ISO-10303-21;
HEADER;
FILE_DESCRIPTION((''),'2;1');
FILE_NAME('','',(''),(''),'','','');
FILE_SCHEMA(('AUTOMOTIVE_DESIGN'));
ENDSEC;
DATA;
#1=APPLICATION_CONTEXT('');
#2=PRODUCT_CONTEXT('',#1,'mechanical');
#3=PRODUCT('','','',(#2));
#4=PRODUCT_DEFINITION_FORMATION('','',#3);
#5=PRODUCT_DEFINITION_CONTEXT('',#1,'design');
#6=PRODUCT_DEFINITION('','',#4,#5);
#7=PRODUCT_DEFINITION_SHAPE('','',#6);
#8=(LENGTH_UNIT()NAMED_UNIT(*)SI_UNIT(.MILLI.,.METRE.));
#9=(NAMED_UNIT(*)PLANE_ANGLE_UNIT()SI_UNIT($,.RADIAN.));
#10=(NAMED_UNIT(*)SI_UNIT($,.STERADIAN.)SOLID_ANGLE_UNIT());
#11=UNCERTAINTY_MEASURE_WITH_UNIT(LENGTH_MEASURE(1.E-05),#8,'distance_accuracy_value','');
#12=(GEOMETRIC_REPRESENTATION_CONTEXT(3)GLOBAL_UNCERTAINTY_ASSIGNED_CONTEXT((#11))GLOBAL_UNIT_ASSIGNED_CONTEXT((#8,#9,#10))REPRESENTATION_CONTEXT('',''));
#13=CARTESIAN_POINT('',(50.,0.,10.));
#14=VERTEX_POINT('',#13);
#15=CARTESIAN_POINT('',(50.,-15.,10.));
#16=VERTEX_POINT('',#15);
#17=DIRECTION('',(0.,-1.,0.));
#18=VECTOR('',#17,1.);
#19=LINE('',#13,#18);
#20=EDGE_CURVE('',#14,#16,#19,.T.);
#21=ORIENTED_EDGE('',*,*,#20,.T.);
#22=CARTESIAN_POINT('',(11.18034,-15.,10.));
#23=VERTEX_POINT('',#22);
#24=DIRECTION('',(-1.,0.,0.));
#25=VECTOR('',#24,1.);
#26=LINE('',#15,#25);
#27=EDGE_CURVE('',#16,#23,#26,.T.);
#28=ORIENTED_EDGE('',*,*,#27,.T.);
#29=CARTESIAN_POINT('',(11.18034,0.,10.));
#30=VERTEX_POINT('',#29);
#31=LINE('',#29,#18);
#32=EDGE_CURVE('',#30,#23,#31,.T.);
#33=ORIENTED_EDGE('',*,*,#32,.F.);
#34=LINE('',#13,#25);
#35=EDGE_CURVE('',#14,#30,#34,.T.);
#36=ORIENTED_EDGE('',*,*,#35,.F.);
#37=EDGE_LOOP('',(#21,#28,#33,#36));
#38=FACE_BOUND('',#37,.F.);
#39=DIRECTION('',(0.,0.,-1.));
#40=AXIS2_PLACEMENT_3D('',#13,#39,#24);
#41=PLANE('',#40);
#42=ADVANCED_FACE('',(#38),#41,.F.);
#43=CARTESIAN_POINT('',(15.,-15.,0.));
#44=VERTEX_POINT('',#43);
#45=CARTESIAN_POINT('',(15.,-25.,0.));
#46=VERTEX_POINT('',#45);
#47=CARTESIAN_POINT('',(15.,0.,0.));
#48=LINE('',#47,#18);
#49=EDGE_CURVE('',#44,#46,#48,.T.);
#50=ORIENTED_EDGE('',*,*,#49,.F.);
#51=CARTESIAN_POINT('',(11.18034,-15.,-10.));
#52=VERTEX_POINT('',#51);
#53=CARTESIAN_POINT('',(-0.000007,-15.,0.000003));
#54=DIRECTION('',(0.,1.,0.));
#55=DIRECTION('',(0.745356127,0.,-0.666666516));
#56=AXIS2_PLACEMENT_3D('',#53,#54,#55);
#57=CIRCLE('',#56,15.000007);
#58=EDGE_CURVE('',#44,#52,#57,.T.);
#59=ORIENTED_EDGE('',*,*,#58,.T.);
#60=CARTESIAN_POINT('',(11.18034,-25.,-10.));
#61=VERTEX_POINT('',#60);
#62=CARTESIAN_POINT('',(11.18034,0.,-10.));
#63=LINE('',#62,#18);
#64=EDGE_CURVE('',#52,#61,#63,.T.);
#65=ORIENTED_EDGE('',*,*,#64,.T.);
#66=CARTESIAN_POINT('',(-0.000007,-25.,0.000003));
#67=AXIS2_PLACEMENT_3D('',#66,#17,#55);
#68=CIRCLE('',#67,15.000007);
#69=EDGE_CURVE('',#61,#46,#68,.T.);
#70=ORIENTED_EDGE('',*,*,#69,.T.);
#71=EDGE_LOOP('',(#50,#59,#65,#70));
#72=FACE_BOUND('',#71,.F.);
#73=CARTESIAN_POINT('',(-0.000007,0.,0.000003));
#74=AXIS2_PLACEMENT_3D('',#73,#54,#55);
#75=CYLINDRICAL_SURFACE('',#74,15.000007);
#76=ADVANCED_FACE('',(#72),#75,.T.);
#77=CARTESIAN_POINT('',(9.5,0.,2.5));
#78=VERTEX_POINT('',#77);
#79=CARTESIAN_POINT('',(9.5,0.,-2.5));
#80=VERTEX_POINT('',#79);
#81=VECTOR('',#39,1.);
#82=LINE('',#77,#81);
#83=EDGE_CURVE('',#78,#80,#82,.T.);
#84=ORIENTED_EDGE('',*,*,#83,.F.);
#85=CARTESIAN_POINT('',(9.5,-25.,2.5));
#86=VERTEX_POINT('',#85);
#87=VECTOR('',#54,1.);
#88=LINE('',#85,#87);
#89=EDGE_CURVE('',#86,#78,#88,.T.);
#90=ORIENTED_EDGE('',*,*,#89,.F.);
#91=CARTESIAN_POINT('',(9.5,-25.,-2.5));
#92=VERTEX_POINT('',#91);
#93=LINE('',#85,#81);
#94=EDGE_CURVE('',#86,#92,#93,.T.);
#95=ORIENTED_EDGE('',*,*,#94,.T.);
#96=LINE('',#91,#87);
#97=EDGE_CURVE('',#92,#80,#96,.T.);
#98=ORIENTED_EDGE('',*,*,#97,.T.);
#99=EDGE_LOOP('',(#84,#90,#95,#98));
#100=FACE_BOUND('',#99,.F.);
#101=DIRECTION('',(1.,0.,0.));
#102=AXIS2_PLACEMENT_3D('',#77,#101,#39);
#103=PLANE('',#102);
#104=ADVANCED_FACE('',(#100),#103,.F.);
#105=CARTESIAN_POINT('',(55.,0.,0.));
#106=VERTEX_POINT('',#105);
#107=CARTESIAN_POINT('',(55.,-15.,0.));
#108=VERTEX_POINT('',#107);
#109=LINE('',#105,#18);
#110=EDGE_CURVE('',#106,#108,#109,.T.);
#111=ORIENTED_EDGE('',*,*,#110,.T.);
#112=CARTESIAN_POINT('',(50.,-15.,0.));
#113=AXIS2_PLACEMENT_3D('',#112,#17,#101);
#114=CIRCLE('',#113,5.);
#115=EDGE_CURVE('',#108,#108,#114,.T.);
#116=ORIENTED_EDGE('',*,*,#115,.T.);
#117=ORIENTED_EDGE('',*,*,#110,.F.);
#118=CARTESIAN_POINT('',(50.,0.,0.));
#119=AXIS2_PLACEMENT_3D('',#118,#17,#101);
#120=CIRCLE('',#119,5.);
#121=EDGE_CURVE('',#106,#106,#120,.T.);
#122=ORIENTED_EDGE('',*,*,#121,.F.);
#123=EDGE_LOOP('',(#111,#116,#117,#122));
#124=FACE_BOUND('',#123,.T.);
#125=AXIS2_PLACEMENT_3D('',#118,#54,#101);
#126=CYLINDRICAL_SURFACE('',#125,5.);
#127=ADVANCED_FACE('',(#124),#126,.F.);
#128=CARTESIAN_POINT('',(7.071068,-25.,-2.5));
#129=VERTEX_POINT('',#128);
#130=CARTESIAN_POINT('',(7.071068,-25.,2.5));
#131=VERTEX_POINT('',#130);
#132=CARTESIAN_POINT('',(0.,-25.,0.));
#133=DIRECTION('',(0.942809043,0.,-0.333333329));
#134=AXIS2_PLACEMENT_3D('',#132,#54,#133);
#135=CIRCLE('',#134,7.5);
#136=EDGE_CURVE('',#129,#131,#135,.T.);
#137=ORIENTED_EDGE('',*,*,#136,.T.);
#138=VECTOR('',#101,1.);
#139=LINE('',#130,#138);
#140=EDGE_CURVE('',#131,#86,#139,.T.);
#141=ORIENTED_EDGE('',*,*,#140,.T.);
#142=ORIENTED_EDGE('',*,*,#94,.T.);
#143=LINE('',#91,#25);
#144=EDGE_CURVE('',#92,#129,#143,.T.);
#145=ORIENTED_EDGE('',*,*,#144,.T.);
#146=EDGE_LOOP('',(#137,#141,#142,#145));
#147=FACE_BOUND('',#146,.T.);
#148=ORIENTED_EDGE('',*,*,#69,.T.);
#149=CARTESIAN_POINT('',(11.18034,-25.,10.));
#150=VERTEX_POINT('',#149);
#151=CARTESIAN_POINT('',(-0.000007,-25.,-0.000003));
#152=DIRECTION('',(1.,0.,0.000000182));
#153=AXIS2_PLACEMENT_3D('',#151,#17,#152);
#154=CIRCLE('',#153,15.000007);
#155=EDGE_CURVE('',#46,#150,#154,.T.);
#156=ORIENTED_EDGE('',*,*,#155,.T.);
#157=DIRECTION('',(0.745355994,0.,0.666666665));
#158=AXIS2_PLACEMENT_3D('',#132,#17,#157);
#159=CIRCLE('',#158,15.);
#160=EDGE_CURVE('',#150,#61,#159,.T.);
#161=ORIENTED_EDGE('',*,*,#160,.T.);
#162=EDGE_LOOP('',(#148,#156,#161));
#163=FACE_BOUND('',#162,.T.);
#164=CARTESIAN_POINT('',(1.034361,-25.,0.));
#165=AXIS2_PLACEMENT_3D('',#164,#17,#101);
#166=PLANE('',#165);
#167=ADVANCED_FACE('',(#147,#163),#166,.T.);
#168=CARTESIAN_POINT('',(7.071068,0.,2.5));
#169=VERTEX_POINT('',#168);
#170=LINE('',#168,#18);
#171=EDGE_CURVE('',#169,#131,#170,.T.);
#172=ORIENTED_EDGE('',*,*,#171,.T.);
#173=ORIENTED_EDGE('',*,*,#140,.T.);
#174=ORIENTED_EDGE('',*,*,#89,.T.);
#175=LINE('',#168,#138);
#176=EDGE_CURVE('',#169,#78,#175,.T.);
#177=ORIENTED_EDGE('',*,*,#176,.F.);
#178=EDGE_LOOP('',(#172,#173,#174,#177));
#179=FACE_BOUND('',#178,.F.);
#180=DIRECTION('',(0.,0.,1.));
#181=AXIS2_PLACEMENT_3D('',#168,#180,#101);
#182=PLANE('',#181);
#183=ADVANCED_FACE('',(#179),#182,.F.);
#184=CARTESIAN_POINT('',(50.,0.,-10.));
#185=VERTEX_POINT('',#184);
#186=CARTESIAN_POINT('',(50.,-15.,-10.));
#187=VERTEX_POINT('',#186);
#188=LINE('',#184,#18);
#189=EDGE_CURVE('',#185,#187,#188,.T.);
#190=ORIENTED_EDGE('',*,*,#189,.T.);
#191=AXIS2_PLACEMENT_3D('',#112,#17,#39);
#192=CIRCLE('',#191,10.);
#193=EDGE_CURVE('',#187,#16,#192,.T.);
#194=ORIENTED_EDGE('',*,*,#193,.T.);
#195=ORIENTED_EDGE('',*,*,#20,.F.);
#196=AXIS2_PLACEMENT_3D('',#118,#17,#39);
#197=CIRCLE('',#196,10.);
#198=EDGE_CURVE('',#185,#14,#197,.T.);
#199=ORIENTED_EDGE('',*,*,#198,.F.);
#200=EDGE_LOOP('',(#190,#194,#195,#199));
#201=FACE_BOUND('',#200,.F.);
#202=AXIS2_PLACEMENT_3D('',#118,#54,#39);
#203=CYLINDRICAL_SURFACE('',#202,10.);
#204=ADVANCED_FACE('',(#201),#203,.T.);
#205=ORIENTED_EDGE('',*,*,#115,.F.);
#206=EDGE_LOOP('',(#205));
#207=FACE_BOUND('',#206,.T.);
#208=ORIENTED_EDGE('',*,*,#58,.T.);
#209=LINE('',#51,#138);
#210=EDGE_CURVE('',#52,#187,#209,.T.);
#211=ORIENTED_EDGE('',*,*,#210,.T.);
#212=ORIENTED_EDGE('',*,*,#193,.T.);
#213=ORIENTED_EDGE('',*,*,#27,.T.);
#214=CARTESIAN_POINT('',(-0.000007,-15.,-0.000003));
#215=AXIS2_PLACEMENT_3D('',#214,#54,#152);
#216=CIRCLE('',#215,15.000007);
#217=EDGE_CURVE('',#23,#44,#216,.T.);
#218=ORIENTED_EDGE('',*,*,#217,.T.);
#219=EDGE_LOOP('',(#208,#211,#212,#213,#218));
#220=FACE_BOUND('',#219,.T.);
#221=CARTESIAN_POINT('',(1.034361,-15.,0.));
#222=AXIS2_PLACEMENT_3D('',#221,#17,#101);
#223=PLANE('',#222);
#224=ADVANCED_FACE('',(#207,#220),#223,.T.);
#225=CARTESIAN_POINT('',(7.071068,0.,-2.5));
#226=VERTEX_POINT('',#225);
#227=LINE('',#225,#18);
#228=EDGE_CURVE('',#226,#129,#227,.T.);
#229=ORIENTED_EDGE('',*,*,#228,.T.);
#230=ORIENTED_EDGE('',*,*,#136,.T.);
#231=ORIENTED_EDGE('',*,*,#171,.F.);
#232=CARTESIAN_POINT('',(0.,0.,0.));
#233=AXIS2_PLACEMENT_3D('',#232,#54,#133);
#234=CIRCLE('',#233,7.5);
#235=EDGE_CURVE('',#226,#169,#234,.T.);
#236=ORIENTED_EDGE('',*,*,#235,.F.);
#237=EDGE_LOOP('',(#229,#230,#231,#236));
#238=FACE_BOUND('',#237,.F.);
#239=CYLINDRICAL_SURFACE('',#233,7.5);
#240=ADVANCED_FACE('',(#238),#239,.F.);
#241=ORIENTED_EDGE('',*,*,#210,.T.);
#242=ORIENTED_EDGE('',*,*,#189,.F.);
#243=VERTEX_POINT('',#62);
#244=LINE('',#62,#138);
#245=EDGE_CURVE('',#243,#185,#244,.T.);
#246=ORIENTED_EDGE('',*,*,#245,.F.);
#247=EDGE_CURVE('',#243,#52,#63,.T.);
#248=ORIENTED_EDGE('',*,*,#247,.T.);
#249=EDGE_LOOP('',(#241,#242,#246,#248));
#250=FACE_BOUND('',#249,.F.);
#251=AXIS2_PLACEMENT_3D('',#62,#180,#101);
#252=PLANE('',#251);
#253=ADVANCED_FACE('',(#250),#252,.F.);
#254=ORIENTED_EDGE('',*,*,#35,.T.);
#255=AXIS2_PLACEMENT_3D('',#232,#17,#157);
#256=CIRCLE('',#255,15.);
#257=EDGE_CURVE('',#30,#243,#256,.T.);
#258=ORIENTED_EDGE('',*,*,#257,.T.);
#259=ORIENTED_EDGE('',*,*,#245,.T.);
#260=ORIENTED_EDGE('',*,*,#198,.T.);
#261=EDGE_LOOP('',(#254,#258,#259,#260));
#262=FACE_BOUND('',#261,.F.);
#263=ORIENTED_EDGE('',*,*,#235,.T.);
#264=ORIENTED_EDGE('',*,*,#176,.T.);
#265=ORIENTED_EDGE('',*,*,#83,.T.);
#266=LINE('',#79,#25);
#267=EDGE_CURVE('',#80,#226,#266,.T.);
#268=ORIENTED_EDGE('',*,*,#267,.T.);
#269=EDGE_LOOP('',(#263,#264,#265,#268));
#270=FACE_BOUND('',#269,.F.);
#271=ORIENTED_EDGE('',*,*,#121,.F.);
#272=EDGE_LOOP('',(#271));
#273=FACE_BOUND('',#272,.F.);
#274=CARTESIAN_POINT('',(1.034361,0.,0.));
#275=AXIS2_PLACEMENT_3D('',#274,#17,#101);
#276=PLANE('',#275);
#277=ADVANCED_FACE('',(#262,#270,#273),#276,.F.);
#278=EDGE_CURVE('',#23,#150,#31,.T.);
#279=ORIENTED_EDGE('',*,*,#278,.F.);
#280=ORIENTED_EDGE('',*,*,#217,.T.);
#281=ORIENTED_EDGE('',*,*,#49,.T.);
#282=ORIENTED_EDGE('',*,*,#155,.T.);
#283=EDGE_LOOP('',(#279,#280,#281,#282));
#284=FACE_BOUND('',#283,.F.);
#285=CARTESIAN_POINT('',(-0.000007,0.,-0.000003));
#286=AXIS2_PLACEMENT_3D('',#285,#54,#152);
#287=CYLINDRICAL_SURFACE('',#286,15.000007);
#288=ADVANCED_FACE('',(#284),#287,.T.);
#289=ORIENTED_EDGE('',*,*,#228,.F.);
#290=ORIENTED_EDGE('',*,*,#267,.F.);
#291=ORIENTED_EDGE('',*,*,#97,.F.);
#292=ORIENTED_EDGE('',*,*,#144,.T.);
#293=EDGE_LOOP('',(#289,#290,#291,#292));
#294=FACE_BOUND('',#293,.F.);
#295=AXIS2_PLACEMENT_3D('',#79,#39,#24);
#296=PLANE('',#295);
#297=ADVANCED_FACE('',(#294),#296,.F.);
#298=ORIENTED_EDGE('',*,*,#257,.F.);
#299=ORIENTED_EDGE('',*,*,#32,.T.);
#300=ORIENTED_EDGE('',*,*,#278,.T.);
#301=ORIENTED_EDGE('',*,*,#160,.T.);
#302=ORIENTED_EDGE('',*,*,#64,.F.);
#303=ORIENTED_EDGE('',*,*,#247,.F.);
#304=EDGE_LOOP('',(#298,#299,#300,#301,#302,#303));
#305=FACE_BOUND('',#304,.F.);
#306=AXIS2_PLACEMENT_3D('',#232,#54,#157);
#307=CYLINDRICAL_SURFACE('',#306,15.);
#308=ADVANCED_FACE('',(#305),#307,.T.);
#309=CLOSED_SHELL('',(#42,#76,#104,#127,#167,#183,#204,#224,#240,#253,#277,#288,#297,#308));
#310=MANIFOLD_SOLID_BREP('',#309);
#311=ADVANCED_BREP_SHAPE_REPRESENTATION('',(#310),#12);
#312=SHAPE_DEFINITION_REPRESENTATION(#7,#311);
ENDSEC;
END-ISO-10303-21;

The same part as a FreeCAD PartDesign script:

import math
import FreeCAD as App
import Part
import Sketcher
from FreeCAD import Vector

doc = App.newDocument("Part")
body = doc.addObject("PartDesign::Body", "Body")

# Sketch on XZ plane
sketch1 = body.newObject("Sketcher::SketchObject", "Sketch")
sketch1.AttachmentSupport = (doc.getObject("XZ_Plane"), [""])
sketch1.MapMode = "FlatFace"
sketch1.addGeometry(Part.ArcOfCircle(Part.Circle(Vector(0, 0, 0), Vector(0, 0, 1), 15), math.radians(42), math.radians(318)), False)
sketch1.addGeometry(Part.LineSegment(Vector(11.2, -10, 0), Vector(50, -10, 0)), False)
sketch1.addGeometry(Part.ArcOfCircle(Part.Circle(Vector(50, 0, 0), Vector(0, 0, 1), 10), math.radians(-90), math.radians(90)), False)
sketch1.addGeometry(Part.LineSegment(Vector(50, 10, 0), Vector(11.2, 10, 0)), False)
sketch1.addGeometry(Part.Circle(Vector(50, 0, 0), Vector(0, 0, 1), 5), False)
sketch1.addGeometry(Part.LineSegment(Vector(9.5, -2.5, 0), Vector(7.1, -2.5, 0)), False)
sketch1.addGeometry(Part.ArcOfCircle(Part.Circle(Vector(0, 0, 0), Vector(0, 0, 1), 7.5), math.radians(19), math.radians(341)), False)
sketch1.addGeometry(Part.LineSegment(Vector(7.1, 2.5, 0), Vector(9.5, 2.5, 0)), False)
sketch1.addGeometry(Part.LineSegment(Vector(9.5, 2.5, 0), Vector(9.5, -2.5, 0)), False)
sketch1.addConstraint(Sketcher.Constraint("Coincident", 0, 2, 1, 1))
sketch1.addConstraint(Sketcher.Constraint("Tangent", 1, 2, 2, 1))
sketch1.addConstraint(Sketcher.Constraint("Tangent", 2, 2, 3, 1))
sketch1.addConstraint(Sketcher.Constraint("Coincident", 3, 2, 0, 1))
sketch1.addConstraint(Sketcher.Constraint("Coincident", 5, 2, 6, 2))
sketch1.addConstraint(Sketcher.Constraint("Coincident", 6, 1, 7, 1))
sketch1.addConstraint(Sketcher.Constraint("Coincident", 7, 2, 8, 1))
sketch1.addConstraint(Sketcher.Constraint("Coincident", 8, 2, 5, 1))
sketch1.addConstraint(Sketcher.Constraint("Horizontal", 1))
sketch1.addConstraint(Sketcher.Constraint("Horizontal", 3))
sketch1.addConstraint(Sketcher.Constraint("Horizontal", 5))
sketch1.addConstraint(Sketcher.Constraint("Horizontal", 7))
sketch1.addConstraint(Sketcher.Constraint("Vertical", 8))
sketch1.addConstraint(Sketcher.Constraint("Coincident", 0, 3, -1, 1))
sketch1.addConstraint(Sketcher.Constraint("Coincident", 6, 3, -1, 1))
sketch1.addConstraint(Sketcher.Constraint("Coincident", 4, 3, 2, 3))
sketch1.addConstraint(Sketcher.Constraint("PointOnObject", 2, 3, -1))
sketch1.addConstraint(Sketcher.Constraint("Vertical", 5, 2, 6, 1))
sketch1.addConstraint(Sketcher.Constraint("Diameter", 4, 10.0))
sketch1.addConstraint(Sketcher.Constraint("Radius", 0, 15.0))
sketch1.addConstraint(Sketcher.Constraint("Radius", 2, 10.0))
sketch1.addConstraint(Sketcher.Constraint("Radius", 6, 7.5))
sketch1.addConstraint(Sketcher.Constraint("DistanceY", 8, 2, 8, 1, 5.0))
sketch1.addConstraint(Sketcher.Constraint("DistanceX", -1, 1, 2, 3, 50.0))
sketch1.addConstraint(Sketcher.Constraint("DistanceX", -1, 1, 7, 2, 9.5))
pad1 = body.newObject("PartDesign::Pad", "Pad")
pad1.Profile = sketch1
pad1.Length = 15

# Sketch on XZ plane
sketch2 = body.newObject("Sketcher::SketchObject", "Sketch001")
sketch2.AttachmentSupport = (doc.getObject("XZ_Plane"), [""])
sketch2.MapMode = "FlatFace"
sketch2.addGeometry(Part.ArcOfCircle(Part.Circle(Vector(0, 0, 0), Vector(0, 0, 1), 15), math.radians(-42), math.radians(0)), False)
sketch2.addGeometry(Part.ArcOfCircle(Part.Circle(Vector(0, 0, 0), Vector(0, 0, 1), 15), math.radians(0), math.radians(42)), False)
sketch2.addGeometry(Part.ArcOfCircle(Part.Circle(Vector(0, 0, 0), Vector(0, 0, 1), 15), math.radians(42), math.radians(318)), False)
sketch2.addGeometry(Part.LineSegment(Vector(9.5, -2.5, 0), Vector(7.1, -2.5, 0)), False)
sketch2.addGeometry(Part.ArcOfCircle(Part.Circle(Vector(0, 0, 0), Vector(0, 0, 1), 7.5), math.radians(19), math.radians(341)), False)
sketch2.addGeometry(Part.LineSegment(Vector(7.1, 2.5, 0), Vector(9.5, 2.5, 0)), False)
sketch2.addGeometry(Part.LineSegment(Vector(9.5, 2.5, 0), Vector(9.5, -2.5, 0)), False)
sketch2.addConstraint(Sketcher.Constraint("Tangent", 0, 2, 1, 1))
sketch2.addConstraint(Sketcher.Constraint("Tangent", 1, 2, 2, 1))
sketch2.addConstraint(Sketcher.Constraint("Tangent", 2, 2, 0, 1))
sketch2.addConstraint(Sketcher.Constraint("Coincident", 3, 2, 4, 2))
sketch2.addConstraint(Sketcher.Constraint("Coincident", 4, 1, 5, 1))
sketch2.addConstraint(Sketcher.Constraint("Coincident", 5, 2, 6, 1))
sketch2.addConstraint(Sketcher.Constraint("Coincident", 6, 2, 3, 1))
sketch2.addConstraint(Sketcher.Constraint("Horizontal", 3))
sketch2.addConstraint(Sketcher.Constraint("Horizontal", 5))
sketch2.addConstraint(Sketcher.Constraint("Vertical", 6))
sketch2.addConstraint(Sketcher.Constraint("Coincident", 0, 3, -1, 1))
sketch2.addConstraint(Sketcher.Constraint("Coincident", 4, 3, -1, 1))
sketch2.addConstraint(Sketcher.Constraint("PointOnObject", 0, 2, -1))
sketch2.addConstraint(Sketcher.Constraint("Vertical", 1, 2, 2, 2))
sketch2.addConstraint(Sketcher.Constraint("Vertical", 3, 2, 4, 1))
sketch2.addConstraint(Sketcher.Constraint("Radius", 2, 15.0))
sketch2.addConstraint(Sketcher.Constraint("Radius", 4, 7.5))
sketch2.addConstraint(Sketcher.Constraint("DistanceY", 6, 2, 6, 1, 5.0))
sketch2.addConstraint(Sketcher.Constraint("DistanceY", -1, 1, 1, 2, 10.0))
sketch2.addConstraint(Sketcher.Constraint("DistanceX", -1, 1, 5, 2, 9.5))
pad2 = body.newObject("PartDesign::Pad", "Pad001")
pad2.Profile = sketch2
pad2.Length = 25

doc.recompute()
